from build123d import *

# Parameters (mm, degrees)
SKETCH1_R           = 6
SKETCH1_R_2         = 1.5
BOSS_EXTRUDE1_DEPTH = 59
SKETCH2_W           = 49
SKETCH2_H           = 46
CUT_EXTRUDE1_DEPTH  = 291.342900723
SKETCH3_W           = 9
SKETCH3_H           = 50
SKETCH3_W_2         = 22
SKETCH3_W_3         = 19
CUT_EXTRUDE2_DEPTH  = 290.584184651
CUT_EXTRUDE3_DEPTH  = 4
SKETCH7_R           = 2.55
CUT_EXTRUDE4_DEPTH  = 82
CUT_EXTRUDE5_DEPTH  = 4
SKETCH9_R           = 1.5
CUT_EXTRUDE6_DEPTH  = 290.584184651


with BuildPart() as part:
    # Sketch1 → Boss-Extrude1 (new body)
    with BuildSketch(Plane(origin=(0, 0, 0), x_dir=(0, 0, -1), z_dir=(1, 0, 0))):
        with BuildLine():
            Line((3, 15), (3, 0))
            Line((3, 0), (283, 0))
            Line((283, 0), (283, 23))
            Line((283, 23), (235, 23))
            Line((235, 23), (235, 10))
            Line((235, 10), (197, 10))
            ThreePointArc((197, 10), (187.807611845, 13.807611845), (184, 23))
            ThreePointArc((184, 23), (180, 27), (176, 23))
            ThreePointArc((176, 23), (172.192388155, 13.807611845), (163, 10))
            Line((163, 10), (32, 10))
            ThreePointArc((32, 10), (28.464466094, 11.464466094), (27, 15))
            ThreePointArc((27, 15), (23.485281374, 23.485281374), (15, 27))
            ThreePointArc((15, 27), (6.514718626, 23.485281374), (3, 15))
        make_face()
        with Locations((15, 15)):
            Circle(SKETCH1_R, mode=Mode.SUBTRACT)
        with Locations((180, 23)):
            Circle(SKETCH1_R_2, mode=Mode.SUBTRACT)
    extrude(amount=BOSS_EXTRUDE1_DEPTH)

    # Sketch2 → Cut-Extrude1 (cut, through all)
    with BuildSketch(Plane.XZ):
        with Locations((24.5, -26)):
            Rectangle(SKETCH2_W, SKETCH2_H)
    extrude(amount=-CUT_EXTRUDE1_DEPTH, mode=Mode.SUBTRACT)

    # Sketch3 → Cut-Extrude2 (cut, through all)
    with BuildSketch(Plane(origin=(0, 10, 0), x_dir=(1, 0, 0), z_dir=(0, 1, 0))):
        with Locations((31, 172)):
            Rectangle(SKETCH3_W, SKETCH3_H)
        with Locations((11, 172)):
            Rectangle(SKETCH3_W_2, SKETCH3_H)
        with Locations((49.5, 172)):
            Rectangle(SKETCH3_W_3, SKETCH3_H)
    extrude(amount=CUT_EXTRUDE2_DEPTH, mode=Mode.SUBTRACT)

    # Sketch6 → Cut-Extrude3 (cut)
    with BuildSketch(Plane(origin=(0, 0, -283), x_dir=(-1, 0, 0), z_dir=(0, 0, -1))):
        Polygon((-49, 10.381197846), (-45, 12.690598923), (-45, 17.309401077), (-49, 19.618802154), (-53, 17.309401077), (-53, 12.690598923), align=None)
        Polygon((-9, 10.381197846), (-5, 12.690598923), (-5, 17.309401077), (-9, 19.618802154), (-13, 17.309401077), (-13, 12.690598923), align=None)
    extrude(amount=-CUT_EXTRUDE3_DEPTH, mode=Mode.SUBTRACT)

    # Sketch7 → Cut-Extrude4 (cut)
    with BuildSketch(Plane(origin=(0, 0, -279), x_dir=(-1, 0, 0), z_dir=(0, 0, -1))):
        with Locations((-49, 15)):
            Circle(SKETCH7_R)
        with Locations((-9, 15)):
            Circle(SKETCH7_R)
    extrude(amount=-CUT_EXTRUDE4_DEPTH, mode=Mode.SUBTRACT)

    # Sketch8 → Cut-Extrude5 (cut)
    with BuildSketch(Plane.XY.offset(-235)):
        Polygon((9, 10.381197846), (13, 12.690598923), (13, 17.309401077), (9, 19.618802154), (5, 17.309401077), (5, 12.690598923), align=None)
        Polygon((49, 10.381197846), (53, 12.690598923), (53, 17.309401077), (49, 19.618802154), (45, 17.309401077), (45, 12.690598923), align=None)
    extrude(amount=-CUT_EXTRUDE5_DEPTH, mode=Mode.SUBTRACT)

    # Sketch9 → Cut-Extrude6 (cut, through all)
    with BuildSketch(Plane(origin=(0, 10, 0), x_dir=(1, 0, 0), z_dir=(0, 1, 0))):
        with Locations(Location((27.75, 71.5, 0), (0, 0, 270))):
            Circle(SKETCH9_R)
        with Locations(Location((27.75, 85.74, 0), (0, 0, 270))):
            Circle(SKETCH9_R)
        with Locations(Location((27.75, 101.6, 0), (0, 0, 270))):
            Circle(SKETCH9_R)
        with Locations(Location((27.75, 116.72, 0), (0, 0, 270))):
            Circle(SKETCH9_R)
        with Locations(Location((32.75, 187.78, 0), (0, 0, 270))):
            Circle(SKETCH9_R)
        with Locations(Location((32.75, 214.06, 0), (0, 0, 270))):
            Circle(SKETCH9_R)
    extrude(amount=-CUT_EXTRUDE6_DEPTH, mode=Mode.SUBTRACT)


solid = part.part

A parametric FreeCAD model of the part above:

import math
import FreeCAD as App
import Part
import Sketcher
Q = App.Units.Quantity


def add_polygon(sketch, points):
    """Adds a closed chain of lines whose ends are joined by coincident constraints."""
    first, n = sketch.GeometryCount, len(points)
    for a, b in zip(points, points[1:] + points[:1]):
        sketch.addGeometry(Part.LineSegment(App.Vector(*a, 0), App.Vector(*b, 0)), False)
    for i in range(n):
        sketch.addConstraint(Sketcher.Constraint("Coincident", first + i, 2, first + (i + 1) % n, 1))

doc = App.newDocument("Part")
body = doc.addObject("PartDesign::Body", "Body")

sketch1 = doc.addObject("Sketcher::SketchObject", "Sketch")
body.addObject(sketch1)
sketch1.AttachmentSupport = (doc.YZ_Plane, [""])
sketch1.MapMode = "FlatFace"
sketch1.addGeometry([
    Part.LineSegment(App.Vector(15, -3, 0), App.Vector(0, -3, 0)),
    Part.LineSegment(App.Vector(0, -3, 0), App.Vector(0, -283, 0)),
    Part.LineSegment(App.Vector(0, -283, 0), App.Vector(23, -283, 0)),
    Part.LineSegment(App.Vector(23, -283, 0), App.Vector(23, -235, 0)),
    Part.LineSegment(App.Vector(23, -235, 0), App.Vector(10, -235, 0)),
    Part.LineSegment(App.Vector(10, -235, 0), App.Vector(10, -197, 0)),
    Part.ArcOfCircle(Part.Circle(App.Vector(23, -197, 0), App.Vector(0, 0, 1), 13), math.radians(90), math.radians(180)),
    Part.ArcOfCircle(Part.Circle(App.Vector(23, -180, 0), App.Vector(0, 0, 1), 4), math.radians(-90), math.radians(90)),
    Part.ArcOfCircle(Part.Circle(App.Vector(23, -163, 0), App.Vector(0, 0, 1), 13), math.radians(-180), math.radians(-90)),
    Part.LineSegment(App.Vector(10, -163, 0), App.Vector(10, -32, 0)),
    Part.ArcOfCircle(Part.Circle(App.Vector(15, -32, 0), App.Vector(0, 0, 1), 5), math.radians(90), math.radians(180)),
    Part.ArcOfCircle(Part.Circle(App.Vector(15, -15, 0), App.Vector(0, 0, 1), 12), math.radians(-90), math.radians(0)),
    Part.ArcOfCircle(Part.Circle(App.Vector(15, -15, 0), App.Vector(0, 0, 1), 12), math.radians(0), math.radians(90)),
    Part.Circle(App.Vector(15, -15, 0), App.Vector(0, 0, 1), 6),
    Part.Circle(App.Vector(23, -180, 0), App.Vector(0, 0, 1), 1.5),
], False)
sketch1.addConstraint([
    Sketcher.Constraint("Coincident", 0, 2, 1, 1),
    Sketcher.Constraint("Coincident", 1, 2, 2, 1),
    Sketcher.Constraint("Coincident", 2, 2, 3, 1),
    Sketcher.Constraint("Coincident", 3, 2, 4, 1),
    Sketcher.Constraint("Coincident", 4, 2, 5, 1),
    Sketcher.Constraint("Tangent", 5, 2, 6, 2),
    Sketcher.Constraint("Tangent", 6, 1, 7, 1),
    Sketcher.Constraint("Tangent", 7, 2, 8, 2),
    Sketcher.Constraint("Tangent", 8, 1, 9, 1),
    Sketcher.Constraint("Tangent", 9, 2, 10, 2),
    Sketcher.Constraint("Tangent", 10, 1, 11, 1),
    Sketcher.Constraint("Tangent", 11, 2, 12, 1),
    Sketcher.Constraint("Tangent", 12, 2, 0, 1),
    Sketcher.Constraint("Horizontal", 0),
    Sketcher.Constraint("Vertical", 1),
    Sketcher.Constraint("Horizontal", 2),
    Sketcher.Constraint("Vertical", 3),
    Sketcher.Constraint("Horizontal", 4),
    Sketcher.Constraint("Vertical", 5),
    Sketcher.Constraint("Vertical", 9),
    Sketcher.Constraint("Coincident", 13, 3, 11, 3),
    Sketcher.Constraint("Coincident", 14, 3, 7, 3),
    Sketcher.Constraint("Equal", 6, 8),
    Sketcher.Constraint("Equal", 11, 12),
    Sketcher.Constraint("PointOnObject", 0, 2, -2),
    Sketcher.Constraint("Horizontal", 13, 3, 11, 2),
    Sketcher.Constraint("Vertical", 6, 3, 7, 3),
    Sketcher.Constraint("Vertical", 7, 3, 8, 3),
    Sketcher.Constraint("Vertical", 10, 3, 11, 3),
    Sketcher.Constraint("Vertical", 14, 3, 2, 2),
    Sketcher.Constraint("Diameter", 13, Q("12 mm")),
    Sketcher.Constraint("Diameter", 14, Q("3 mm")),
    Sketcher.Constraint("Radius", 6, Q("13 mm")),
    Sketcher.Constraint("Radius", 7, Q("4 mm")),
    Sketcher.Constraint("Radius", 10, Q("5 mm")),
    Sketcher.Constraint("Radius", 11, Q("12 mm")),
    Sketcher.Constraint("DistanceX", 0, 2, 0, 1, Q("15 mm")),
    Sketcher.Constraint("DistanceY", 1, 2, 1, 1, Q("280 mm")),
    Sketcher.Constraint("DistanceY", 3, 1, 3, 2, Q("48 mm")),
    Sketcher.Constraint("DistanceY", 5, 1, 5, 2, Q("38 mm")),
    Sketcher.Constraint("DistanceY", 6, 3, -1, 1, Q("197 mm")),
])
pad1 = doc.addObject("PartDesign::Pad", "Pad")
body.addObject(pad1)
pad1.Profile = sketch1
pad1.Length = 59

sketch2 = doc.addObject("Sketcher::SketchObject", "Sketch001")
body.addObject(sketch2)
sketch2.AttachmentSupport = (doc.XZ_Plane, [""])
sketch2.MapMode = "FlatFace"
add_polygon(sketch2, [(0, -3), (0, -49), (49, -49), (49, -3)])
sketch2.addConstraint([
    Sketcher.Constraint("Vertical", 0),
    Sketcher.Constraint("Horizontal", 1),
    Sketcher.Constraint("Vertical", 2),
    Sketcher.Constraint("Horizontal", 3),
    Sketcher.Constraint("PointOnObject", 0, 2, -2),
    Sketcher.Constraint("DistanceX", 1, 1, 1, 2, Q("49 mm")),
    Sketcher.Constraint("DistanceY", 0, 2, 0, 1, Q("46 mm")),
    Sketcher.Constraint("DistanceY", 0, 2, -1, 1, Q("49 mm")),
])
pocket1 = doc.addObject("PartDesign::Pocket", "Pocket")
body.addObject(pocket1)
pocket1.Profile = sketch2
pocket1.Type = "ThroughAll"

sketch3 = doc.addObject("Sketcher::SketchObject", "Sketch002")
body.addObject(sketch3)
sketch3.AttachmentSupport = (doc.XZ_Plane, [""])
sketch3.MapMode = "FlatFace"
sketch3.AttachmentOffset = App.Placement(App.Vector(0, 0, -10), App.Rotation())
add_polygon(sketch3, [(26.5, -197), (26.5, -147), (35.5, -147), (35.5, -197)])
add_polygon(sketch3, [(0, -197), (0, -147), (22, -147), (22, -197)])
add_polygon(sketch3, [(40, -197), (40, -147), (59, -147), (59, -197)])
sketch3.addConstraint([
    Sketcher.Constraint("Vertical", 0),
    Sketcher.Constraint("Horizontal", 1),
    Sketcher.Constraint("Vertical", 2),
    Sketcher.Constraint("Horizontal", 3),
    Sketcher.Constraint("Vertical", 4),
    Sketcher.Constraint("Horizontal", 5),
    Sketcher.Constraint("Vertical", 6),
    Sketcher.Constraint("Horizontal", 7),
    Sketcher.Constraint("Vertical", 8),
    Sketcher.Constraint("Horizontal", 9),
    Sketcher.Constraint("Vertical", 10),
    Sketcher.Constraint("Horizontal", 11),
    Sketcher.Constraint("PointOnObject", 4, 2, -2),
    Sketcher.Constraint("Horizontal", 1, 2, 4, 2),
    Sketcher.Constraint("Horizontal", 3, 2, 6, 2),
    Sketcher.Constraint("Horizontal", 5, 2, 8, 2),
    Sketcher.Constraint("Horizontal", 7, 2, 10, 2),
    Sketcher.Constraint("DistanceX", 1, 1, 1, 2, Q("9 mm")),
    Sketcher.Constraint("DistanceX", 5, 1, 5, 2, Q("22 mm")),
    Sketcher.Constraint("DistanceX", 9, 1, 9, 2, Q("19 mm")),
    Sketcher.Constraint("DistanceY", 0, 1, 0, 2, Q("50 mm")),
    Sketcher.Constraint("DistanceY", 0, 2, -1, 1, Q("147 mm")),
    Sketcher.Constraint("DistanceX", -1, 1, 8, 2, Q("40 mm")),
    Sketcher.Constraint("DistanceX", -1, 1, 0, 2, Q("26.5 mm")),
])
pocket2 = doc.addObject("PartDesign::Pocket", "Pocket001")
body.addObject(pocket2)
pocket2.Profile = sketch3
pocket2.Type = "ThroughAll"

sketch4 = doc.addObject("Sketcher::SketchObject", "Sketch003")
body.addObject(sketch4)
sketch4.AttachmentSupport = (doc.XY_Plane, [""])
sketch4.MapMode = "FlatFace"
sketch4.AttachmentOffset = App.Placement(App.Vector(0, 0, -283), App.Rotation())
add_polygon(sketch4, [(49, 10.381198), (45, 12.690599), (45, 17.309401), (49, 19.618802), (53, 17.309401), (53, 12.690599)])
add_polygon(sketch4, [(9, 10.381198), (5, 12.690599), (5, 17.309401), (9, 19.618802), (13, 17.309401), (13, 12.690599)])
sketch4.addConstraint([
    Sketcher.Constraint("Vertical", 1),
    Sketcher.Constraint("Vertical", 4),
    Sketcher.Constraint("Vertical", 7),
    Sketcher.Constraint("Vertical", 10),
    Sketcher.Constraint("Parallel", 0, 3),
    Sketcher.Constraint("Parallel", 2, 5),
    Sketcher.Constraint("Parallel", 3, 6),
    Sketcher.Constraint("Parallel", 5, 8),
    Sketcher.Constraint("Parallel", 6, 9),
    Sketcher.Constraint("Parallel", 8, 11),
    Sketcher.Constraint("Horizontal", 1, 2, 3, 2),
    Sketcher.Constraint("Horizontal", 0, 2, 4, 2),
    Sketcher.Constraint("Horizontal", 4, 2, 6, 2),
    Sketcher.Constraint("Horizontal", 3, 2, 7, 2),
    Sketcher.Constraint("Horizontal", 2, 2, 8, 2),
    Sketcher.Constraint("Horizontal", 7, 2, 9, 2),
    Sketcher.Constraint("Horizontal", 6, 2, 10, 2),
    Sketcher.Constraint("Vertical", 2, 2, 5, 2),
    Sketcher.Constraint("Angle", 0, Q("150 deg")),
    Sketcher.Constraint("DistanceX", -1, 1, 0, 2, Q("45 mm")),
    Sketcher.Constraint("DistanceX", -1, 1, 2, 2, Q("49 mm")),
    Sketcher.Constraint("DistanceX", -1, 1, 6, 2, Q("5 mm")),
    Sketcher.Constraint("DistanceY", -1, 1, 0, 2, Q("12.690599 mm")),
    Sketcher.Constraint("DistanceY", -1, 1, 1, 2, Q("17.309401 mm")),
])
pocket3 = doc.addObject("PartDesign::Pocket", "Pocket002")
body.addObject(pocket3)
pocket3.Profile = sketch4
pocket3.Length = 4
pocket3.Reversed = True

sketch5 = doc.addObject("Sketcher::SketchObject", "Sketch004")
body.addObject(sketch5)
sketch5.AttachmentSupport = (doc.XY_Plane, [""])
sketch5.MapMode = "FlatFace"
sketch5.AttachmentOffset = App.Placement(App.Vector(0, 0, -279), App.Rotation())
sketch5.addGeometry([
    Part.Circle(App.Vector(49, 15, 0), App.Vector(0, 0, 1), 2.55),
    Part.Circle(App.Vector(9, 15, 0), App.Vector(0, 0, 1), 2.55),
], False)
sketch5.addConstraint([
    Sketcher.Constraint("Equal", 0, 1),
    Sketcher.Constraint("Horizontal", 0, 3, 1, 3),
    Sketcher.Constraint("Diameter", 0, Q("5.1 mm")),
    Sketcher.Constraint("DistanceX", -1, 1, 0, 3, Q("49 mm")),
    Sketcher.Constraint("DistanceY", -1, 1, 0, 3, Q("15 mm")),
    Sketcher.Constraint("DistanceX", -1, 1, 1, 3, Q("9 mm")),
])
pocket4 = doc.addObject("PartDesign::Pocket", "Pocket003")
body.addObject(pocket4)
pocket4.Profile = sketch5
pocket4.Length = 82
pocket4.Reversed = True

sketch6 = doc.addObject("Sketcher::SketchObject", "Sketch005")
body.addObject(sketch6)
sketch6.AttachmentSupport = (doc.XY_Plane, [""])
sketch6.MapMode = "FlatFace"
sketch6.AttachmentOffset = App.Placement(App.Vector(0, 0, -235), App.Rotation())
add_polygon(sketch6, [(9, 10.381198), (13, 12.690599), (13, 17.309401), (9, 19.618802), (5, 17.309401), (5, 12.690599)])
add_polygon(sketch6, [(49, 10.381198), (53, 12.690599), (53, 17.309401), (49, 19.618802), (45, 17.309401), (45, 12.690599)])
sketch6.addConstraint([
    Sketcher.Constraint("Vertical", 1),
    Sketcher.Constraint("Vertical", 4),
    Sketcher.Constraint("Vertical", 7),
    Sketcher.Constraint("Vertical", 10),
    Sketcher.Constraint("Parallel", 0, 3),
    Sketcher.Constraint("Parallel", 2, 5),
    Sketcher.Constraint("Parallel", 3, 6),
    Sketcher.Constraint("Parallel", 5, 8),
    Sketcher.Constraint("Parallel", 6, 9),
    Sketcher.Constraint("Parallel", 8, 11),
    Sketcher.Constraint("Horizontal", 1, 2, 3, 2),
    Sketcher.Constraint("Horizontal", 0, 2, 4, 2),
    Sketcher.Constraint("Horizontal", 4, 2, 6, 2),
    Sketcher.Constraint("Horizontal", 3, 2, 7, 2),
    Sketcher.Constraint("Horizontal", 2, 2, 8, 2),
    Sketcher.Constraint("Horizontal", 7, 2, 9, 2),
    Sketcher.Constraint("Horizontal", 6, 2, 10, 2),
    Sketcher.Constraint("Vertical", 2, 2, 5, 2),
    Sketcher.Constraint("Angle", 0, Q("30 deg")),
    Sketcher.Constraint("DistanceX", -1, 1, 0, 2, Q("13 mm")),
    Sketcher.Constraint("DistanceX", -1, 1, 2, 2, Q("9 mm")),
    Sketcher.Constraint("DistanceX", -1, 1, 6, 2, Q("53 mm")),
    Sketcher.Constraint("DistanceY", -1, 1, 0, 2, Q("12.690599 mm")),
    Sketcher.Constraint("DistanceY", -1, 1, 1, 2, Q("17.309401 mm")),
])
pocket5 = doc.addObject("PartDesign::Pocket", "Pocket004")
body.addObject(pocket5)
pocket5.Profile = sketch6
pocket5.Length = 4

sketch7 = doc.addObject("Sketcher::SketchObject", "Sketch006")
body.addObject(sketch7)
sketch7.AttachmentSupport = (doc.XZ_Plane, [""])
sketch7.MapMode = "FlatFace"
sketch7.AttachmentOffset = App.Placement(App.Vector(0, 0, -10), App.Rotation())
sketch7.addGeometry([
    Part.Circle(App.Vector(27.75, -71.5, 0), App.Vector(0, 0, 1), 1.5),
    Part.Circle(App.Vector(27.75, -85.74, 0), App.Vector(0, 0, 1), 1.5),
    Part.Circle(App.Vector(27.75, -101.6, 0), App.Vector(0, 0, 1), 1.5),
    Part.Circle(App.Vector(27.75, -116.72, 0), App.Vector(0, 0, 1), 1.5),
    Part.Circle(App.Vector(32.75, -187.78, 0), App.Vector(0, 0, 1), 1.5),
    Part.Circle(App.Vector(32.75, -214.06, 0), App.Vector(0, 0, 1), 1.5),
], False)
sketch7.addConstraint([
    Sketcher.Constraint("Equal", 0, 1),
    Sketcher.Constraint("Equal", 1, 2),
    Sketcher.Constraint("Equal", 2, 3),
    Sketcher.Constraint("Equal", 3, 4),
    Sketcher.Constraint("Equal", 4, 5),
    Sketcher.Constraint("Vertical", 0, 3, 1, 3),
    Sketcher.Constraint("Vertical", 1, 3, 2, 3),
    Sketcher.Constraint("Vertical", 2, 3, 3, 3),
    Sketcher.Constraint("Vertical", 4, 3, 5, 3),
    Sketcher.Constraint("Diameter", 0, Q("3 mm")),
    Sketcher.Constraint("DistanceX", 3, 3, 4, 3, Q("5 mm")),
    Sketcher.Constraint("DistanceY", 0, 3, -1, 1, Q("71.5 mm")),
    Sketcher.Constraint("DistanceY", 2, 3, -1, 1, Q("101.6 mm")),
    Sketcher.Constraint("DistanceX", -1, 1, 0, 3, Q("27.75 mm")),
    Sketcher.Constraint("DistanceY", 1, 3, -1, 1, Q("85.74 mm")),
    Sketcher.Constraint("DistanceY", 3, 3, -1, 1, Q("116.72 mm")),
    Sketcher.Constraint("DistanceY", 4, 3, -1, 1, Q("187.78 mm")),
    Sketcher.Constraint("DistanceY", 5, 3, -1, 1, Q("214.06 mm")),
])
pocket6 = doc.addObject("PartDesign::Pocket", "Pocket005")
body.addObject(pocket6)
pocket6.Profile = sketch7
pocket6.Type = "ThroughAll"
pocket6.Reversed = True

doc.recompute()
